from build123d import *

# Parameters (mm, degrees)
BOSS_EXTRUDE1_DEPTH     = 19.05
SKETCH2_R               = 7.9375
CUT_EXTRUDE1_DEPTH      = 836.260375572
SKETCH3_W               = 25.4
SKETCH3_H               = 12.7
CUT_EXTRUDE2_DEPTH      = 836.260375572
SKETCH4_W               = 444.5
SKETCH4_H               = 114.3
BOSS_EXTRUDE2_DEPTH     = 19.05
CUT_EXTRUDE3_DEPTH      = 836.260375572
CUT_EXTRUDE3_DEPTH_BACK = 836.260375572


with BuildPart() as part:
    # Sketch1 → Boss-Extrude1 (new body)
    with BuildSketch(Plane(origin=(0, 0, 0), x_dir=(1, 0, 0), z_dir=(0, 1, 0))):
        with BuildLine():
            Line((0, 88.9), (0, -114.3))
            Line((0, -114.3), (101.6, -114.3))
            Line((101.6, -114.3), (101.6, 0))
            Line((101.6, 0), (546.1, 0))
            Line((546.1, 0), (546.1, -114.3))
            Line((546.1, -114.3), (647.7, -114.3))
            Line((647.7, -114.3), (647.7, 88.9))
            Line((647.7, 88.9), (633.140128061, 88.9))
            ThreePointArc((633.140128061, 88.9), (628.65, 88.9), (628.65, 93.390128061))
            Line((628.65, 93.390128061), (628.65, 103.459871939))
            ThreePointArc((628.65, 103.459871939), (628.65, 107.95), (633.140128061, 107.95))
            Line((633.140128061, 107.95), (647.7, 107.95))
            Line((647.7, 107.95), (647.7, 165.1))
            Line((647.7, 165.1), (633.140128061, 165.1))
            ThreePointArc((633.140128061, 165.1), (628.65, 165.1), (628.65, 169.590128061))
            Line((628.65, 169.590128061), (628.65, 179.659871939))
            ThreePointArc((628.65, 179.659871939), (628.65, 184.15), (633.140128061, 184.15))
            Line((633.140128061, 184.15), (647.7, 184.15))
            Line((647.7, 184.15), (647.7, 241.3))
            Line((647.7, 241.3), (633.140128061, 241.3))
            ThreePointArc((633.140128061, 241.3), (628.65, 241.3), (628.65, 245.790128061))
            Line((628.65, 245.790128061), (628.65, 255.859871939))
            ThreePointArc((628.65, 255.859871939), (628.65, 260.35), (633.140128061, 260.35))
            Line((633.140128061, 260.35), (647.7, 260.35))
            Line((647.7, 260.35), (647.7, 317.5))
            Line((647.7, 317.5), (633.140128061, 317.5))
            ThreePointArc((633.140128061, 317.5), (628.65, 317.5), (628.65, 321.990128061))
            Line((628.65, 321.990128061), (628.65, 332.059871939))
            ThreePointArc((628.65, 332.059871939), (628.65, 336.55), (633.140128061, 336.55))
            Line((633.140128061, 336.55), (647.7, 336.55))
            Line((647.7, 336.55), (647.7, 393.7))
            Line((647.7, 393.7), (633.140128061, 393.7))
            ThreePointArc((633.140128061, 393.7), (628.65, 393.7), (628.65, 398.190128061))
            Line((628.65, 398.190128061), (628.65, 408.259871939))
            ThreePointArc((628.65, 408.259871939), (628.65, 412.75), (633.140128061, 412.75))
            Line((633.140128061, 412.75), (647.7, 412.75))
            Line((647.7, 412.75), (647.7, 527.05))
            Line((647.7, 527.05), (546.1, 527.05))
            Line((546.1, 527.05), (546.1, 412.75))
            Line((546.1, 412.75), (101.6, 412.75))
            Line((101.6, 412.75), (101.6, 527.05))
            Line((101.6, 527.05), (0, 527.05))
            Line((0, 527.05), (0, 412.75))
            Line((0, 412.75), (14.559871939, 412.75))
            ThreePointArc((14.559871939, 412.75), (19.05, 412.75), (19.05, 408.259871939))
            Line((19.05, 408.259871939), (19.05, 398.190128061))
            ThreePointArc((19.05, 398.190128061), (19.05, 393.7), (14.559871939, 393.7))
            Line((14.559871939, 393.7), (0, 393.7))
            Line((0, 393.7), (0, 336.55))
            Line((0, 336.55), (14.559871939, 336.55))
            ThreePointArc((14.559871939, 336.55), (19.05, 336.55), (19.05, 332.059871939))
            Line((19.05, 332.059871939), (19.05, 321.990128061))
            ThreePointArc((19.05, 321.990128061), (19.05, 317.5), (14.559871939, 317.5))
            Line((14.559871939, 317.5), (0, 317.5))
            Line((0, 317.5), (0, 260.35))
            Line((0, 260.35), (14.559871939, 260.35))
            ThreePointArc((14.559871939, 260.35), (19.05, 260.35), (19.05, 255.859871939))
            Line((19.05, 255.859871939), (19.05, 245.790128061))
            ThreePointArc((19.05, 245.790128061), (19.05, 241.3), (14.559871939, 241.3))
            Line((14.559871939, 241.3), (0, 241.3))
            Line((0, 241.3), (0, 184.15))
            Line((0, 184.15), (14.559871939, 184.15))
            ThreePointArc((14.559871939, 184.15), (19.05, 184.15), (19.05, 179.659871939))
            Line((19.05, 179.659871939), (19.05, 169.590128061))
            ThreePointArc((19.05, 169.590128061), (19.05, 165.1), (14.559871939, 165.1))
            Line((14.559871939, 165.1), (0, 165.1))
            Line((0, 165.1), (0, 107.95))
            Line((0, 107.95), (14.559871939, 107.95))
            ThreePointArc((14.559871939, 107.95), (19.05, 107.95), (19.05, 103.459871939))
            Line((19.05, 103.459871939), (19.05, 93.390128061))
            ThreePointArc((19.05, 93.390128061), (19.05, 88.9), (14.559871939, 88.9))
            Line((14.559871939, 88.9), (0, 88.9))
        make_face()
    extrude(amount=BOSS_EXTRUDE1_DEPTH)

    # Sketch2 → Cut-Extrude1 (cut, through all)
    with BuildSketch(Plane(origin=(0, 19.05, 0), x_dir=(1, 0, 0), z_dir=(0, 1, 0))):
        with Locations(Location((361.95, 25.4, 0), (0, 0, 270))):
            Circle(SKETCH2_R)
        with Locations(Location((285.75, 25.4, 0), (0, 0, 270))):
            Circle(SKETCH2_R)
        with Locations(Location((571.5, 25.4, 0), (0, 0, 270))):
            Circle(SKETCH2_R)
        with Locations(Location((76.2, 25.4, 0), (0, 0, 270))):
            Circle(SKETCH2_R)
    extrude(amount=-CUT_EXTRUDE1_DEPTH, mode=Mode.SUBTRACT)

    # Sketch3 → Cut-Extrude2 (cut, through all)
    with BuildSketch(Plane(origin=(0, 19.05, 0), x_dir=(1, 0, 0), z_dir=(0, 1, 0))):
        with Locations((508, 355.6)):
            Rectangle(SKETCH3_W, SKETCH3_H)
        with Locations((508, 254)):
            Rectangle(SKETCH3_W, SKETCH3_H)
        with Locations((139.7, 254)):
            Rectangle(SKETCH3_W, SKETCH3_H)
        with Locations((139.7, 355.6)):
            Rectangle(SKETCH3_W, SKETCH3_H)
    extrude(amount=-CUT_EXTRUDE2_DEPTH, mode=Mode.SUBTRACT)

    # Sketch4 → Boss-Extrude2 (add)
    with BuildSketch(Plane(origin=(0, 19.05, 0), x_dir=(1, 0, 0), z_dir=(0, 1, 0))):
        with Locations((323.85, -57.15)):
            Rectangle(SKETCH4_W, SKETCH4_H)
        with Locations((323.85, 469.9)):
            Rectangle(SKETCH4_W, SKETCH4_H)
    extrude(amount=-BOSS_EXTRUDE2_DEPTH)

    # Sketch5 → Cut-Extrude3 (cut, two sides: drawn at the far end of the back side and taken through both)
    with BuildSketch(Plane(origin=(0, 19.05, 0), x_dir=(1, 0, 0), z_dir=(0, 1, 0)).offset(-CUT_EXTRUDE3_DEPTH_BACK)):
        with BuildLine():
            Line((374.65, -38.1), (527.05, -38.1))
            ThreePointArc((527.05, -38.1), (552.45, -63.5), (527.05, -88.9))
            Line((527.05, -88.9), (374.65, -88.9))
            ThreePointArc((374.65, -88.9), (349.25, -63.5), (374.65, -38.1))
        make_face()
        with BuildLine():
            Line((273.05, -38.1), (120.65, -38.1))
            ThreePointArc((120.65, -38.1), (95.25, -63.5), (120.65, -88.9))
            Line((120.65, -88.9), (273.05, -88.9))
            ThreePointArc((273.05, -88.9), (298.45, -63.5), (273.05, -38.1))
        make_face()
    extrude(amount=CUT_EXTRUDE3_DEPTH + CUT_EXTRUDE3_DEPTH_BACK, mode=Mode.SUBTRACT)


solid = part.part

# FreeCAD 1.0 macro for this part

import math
import FreeCAD as App
import Part
import Sketcher

V = App.Vector
Q = App.Units.Quantity

doc = App.newDocument("Part")
params = doc.addObject("Spreadsheet::Sheet", "Params")
for row, (alias, value) in enumerate([
    ("sketch1_width", "4 in"),
    ("sketch1_height", "8 in"),
    ("sketch1_width2", "17.5 in"),
    ("sketch1_height2", "4.5 in"),
    ("sketch1_radius", "0.125 in"),
    ("pad1_length", "0.75 in"),
    ("sketch2_diameter", "0.625 in"),
    ("sketch3_width", "1 in"),
    ("sketch3_height", "0.5 in"),
    ("sketch4_width", "17.5 in"),
    ("sketch4_height", "4.5 in"),
    ("pad2_length", "0.75 in"),
    ("sketch5_radius", "1 in"),
    ("sketch5_width", "6 in"),
], start=1):
    params.set(f"A{row}", alias)
    params.set(f"B{row}", "=" + value)
    params.setAlias(f"B{row}", alias)

body = doc.addObject("PartDesign::Body", "Body")

sketch1 = body.newObject("Sketcher::SketchObject", "Sketch")
sketch1.AttachmentSupport = (doc.getObject("XZ_Plane"), [""])
sketch1.MapMode = "FlatFace"
sketch1.addGeometry([
    Part.LineSegment(V(0, -88.9, 0), V(0, 114.3, 0)),
    Part.LineSegment(V(0, 114.3, 0), V(101.6, 114.3, 0)),
    Part.LineSegment(V(101.6, 114.3, 0), V(101.6, 0, 0)),
    Part.LineSegment(V(101.6, 0, 0), V(546.1, 0, 0)),
    Part.LineSegment(V(546.1, 0, 0), V(546.1, 114.3, 0)),
    Part.LineSegment(V(546.1, 114.3, 0), V(647.7, 114.3, 0)),
    Part.LineSegment(V(647.7, 114.3, 0), V(647.7, -88.9, 0)),
    Part.LineSegment(V(647.7, -88.9, 0), V(633.1, -88.9, 0)),
    Part.ArcOfCircle(Part.Circle(V(630.9, -91.1, 0), V(0, 0, 1), 3.2), math.radians(45), math.radians(225)),
    Part.LineSegment(V(628.6, -93.4, 0), V(628.6, -103.5, 0)),
    Part.ArcOfCircle(Part.Circle(V(630.9, -105.7, 0), V(0, 0, 1), 3.2), math.radians(135), math.radians(315)),
    Part.LineSegment(V(633.1, -108, 0), V(647.7, -108, 0)),
    Part.LineSegment(V(647.7, -108, 0), V(647.7, -165.1, 0)),
    Part.LineSegment(V(647.7, -165.1, 0), V(633.1, -165.1, 0)),
    Part.ArcOfCircle(Part.Circle(V(630.9, -167.3, 0), V(0, 0, 1), 3.2), math.radians(45), math.radians(225)),
    Part.LineSegment(V(628.6, -169.6, 0), V(628.6, -179.7, 0)),
    Part.ArcOfCircle(Part.Circle(V(630.9, -181.9, 0), V(0, 0, 1), 3.2), math.radians(135), math.radians(315)),
    Part.LineSegment(V(633.1, -184.2, 0), V(647.7, -184.2, 0)),
    Part.LineSegment(V(647.7, -184.2, 0), V(647.7, -241.3, 0)),
    Part.LineSegment(V(647.7, -241.3, 0), V(633.1, -241.3, 0)),
    Part.ArcOfCircle(Part.Circle(V(630.9, -243.5, 0), V(0, 0, 1), 3.2), math.radians(45), math.radians(225)),
    Part.LineSegment(V(628.6, -245.8, 0), V(628.6, -255.9, 0)),
    Part.ArcOfCircle(Part.Circle(V(630.9, -258.1, 0), V(0, 0, 1), 3.2), math.radians(135), math.radians(315)),
    Part.LineSegment(V(633.1, -260.4, 0), V(647.7, -260.4, 0)),
    Part.LineSegment(V(647.7, -260.4, 0), V(647.7, -317.5, 0)),
    Part.LineSegment(V(647.7, -317.5, 0), V(633.1, -317.5, 0)),
    Part.ArcOfCircle(Part.Circle(V(630.9, -319.7, 0), V(0, 0, 1), 3.2), math.radians(45), math.radians(225)),
    Part.LineSegment(V(628.6, -322, 0), V(628.6, -332.1, 0)),
    Part.ArcOfCircle(Part.Circle(V(630.9, -334.3, 0), V(0, 0, 1), 3.2), math.radians(135), math.radians(315)),
    Part.LineSegment(V(633.1, -336.6, 0), V(647.7, -336.6, 0)),
    Part.LineSegment(V(647.7, -336.6, 0), V(647.7, -393.7, 0)),
    Part.LineSegment(V(647.7, -393.7, 0), V(633.1, -393.7, 0)),
    Part.ArcOfCircle(Part.Circle(V(630.9, -395.9, 0), V(0, 0, 1), 3.2), math.radians(45), math.radians(225)),
    Part.LineSegment(V(628.6, -398.2, 0), V(628.6, -408.3, 0)),
    Part.ArcOfCircle(Part.Circle(V(630.9, -410.5, 0), V(0, 0, 1), 3.2), math.radians(135), math.radians(315)),
    Part.LineSegment(V(633.1, -412.8, 0), V(647.7, -412.8, 0)),
    Part.LineSegment(V(647.7, -412.8, 0), V(647.7, -527, 0)),
    Part.LineSegment(V(647.7, -527, 0), V(546.1, -527, 0)),
    Part.LineSegment(V(546.1, -527, 0), V(546.1, -412.8, 0)),
    Part.LineSegment(V(546.1, -412.8, 0), V(101.6, -412.8, 0)),
    Part.LineSegment(V(101.6, -412.8, 0), V(101.6, -527, 0)),
    Part.LineSegment(V(101.6, -527, 0), V(0, -527, 0)),
    Part.LineSegment(V(0, -527, 0), V(0, -412.8, 0)),
    Part.LineSegment(V(0, -412.8, 0), V(14.6, -412.8, 0)),
    Part.ArcOfCircle(Part.Circle(V(16.8, -410.5, 0), V(0, 0, 1), 3.2), math.radians(-135), math.radians(45)),
    Part.LineSegment(V(19.1, -408.3, 0), V(19.1, -398.2, 0)),
    Part.ArcOfCircle(Part.Circle(V(16.8, -395.9, 0), V(0, 0, 1), 3.2), math.radians(-45), math.radians(135)),
    Part.LineSegment(V(14.6, -393.7, 0), V(0, -393.7, 0)),
    Part.LineSegment(V(0, -393.7, 0), V(0, -336.6, 0)),
    Part.LineSegment(V(0, -336.6, 0), V(14.6, -336.6, 0)),
    Part.ArcOfCircle(Part.Circle(V(16.8, -334.3, 0), V(0, 0, 1), 3.2), math.radians(-135), math.radians(45)),
    Part.LineSegment(V(19.1, -332.1, 0), V(19.1, -322, 0)),
    Part.ArcOfCircle(Part.Circle(V(16.8, -319.7, 0), V(0, 0, 1), 3.2), math.radians(-45), math.radians(135)),
    Part.LineSegment(V(14.6, -317.5, 0), V(0, -317.5, 0)),
    Part.LineSegment(V(0, -317.5, 0), V(0, -260.4, 0)),
    Part.LineSegment(V(0, -260.4, 0), V(14.6, -260.4, 0)),
    Part.ArcOfCircle(Part.Circle(V(16.8, -258.1, 0), V(0, 0, 1), 3.2), math.radians(-135), math.radians(45)),
    Part.LineSegment(V(19.1, -255.9, 0), V(19.1, -245.8, 0)),
    Part.ArcOfCircle(Part.Circle(V(16.8, -243.5, 0), V(0, 0, 1), 3.2), math.radians(-45), math.radians(135)),
    Part.LineSegment(V(14.6, -241.3, 0), V(0, -241.3, 0)),
    Part.LineSegment(V(0, -241.3, 0), V(0, -184.2, 0)),
    Part.LineSegment(V(0, -184.2, 0), V(14.6, -184.2, 0)),
    Part.ArcOfCircle(Part.Circle(V(16.8, -181.9, 0), V(0, 0, 1), 3.2), math.radians(-135), math.radians(45)),
    Part.LineSegment(V(19.1, -179.7, 0), V(19.1, -169.6, 0)),
    Part.ArcOfCircle(Part.Circle(V(16.8, -167.3, 0), V(0, 0, 1), 3.2), math.radians(-45), math.radians(135)),
    Part.LineSegment(V(14.6, -165.1, 0), V(0, -165.1, 0)),
    Part.LineSegment(V(0, -165.1, 0), V(0, -108, 0)),
    Part.LineSegment(V(0, -108, 0), V(14.6, -108, 0)),
    Part.ArcOfCircle(Part.Circle(V(16.8, -105.7, 0), V(0, 0, 1), 3.2), math.radians(-135), math.radians(45)),
    Part.LineSegment(V(19.1, -103.5, 0), V(19.1, -93.4, 0)),
    Part.ArcOfCircle(Part.Circle(V(16.8, -91.1, 0), V(0, 0, 1), 3.2), math.radians(-45), math.radians(135)),
    Part.LineSegment(V(14.6, -88.9, 0), V(0, -88.9, 0)),
], False)
sketch1.addConstraint([
    Sketcher.Constraint("Coincident", 0, 2, 1, 1),
    Sketcher.Constraint("Coincident", 1, 2, 2, 1),
    Sketcher.Constraint("Coincident", 2, 2, 3, 1),
    Sketcher.Constraint("Coincident", 3, 2, 4, 1),
    Sketcher.Constraint("Coincident", 4, 2, 5, 1),
    Sketcher.Constraint("Coincident", 5, 2, 6, 1),
    Sketcher.Constraint("Coincident", 6, 2, 7, 1),
    Sketcher.Constraint("Coincident", 7, 2, 8, 1),
    Sketcher.Constraint("Coincident", 8, 2, 9, 1),
    Sketcher.Constraint("Coincident", 9, 2, 10, 1),
    Sketcher.Constraint("Coincident", 10, 2, 11, 1),
    Sketcher.Constraint("Coincident", 11, 2, 12, 1),
    Sketcher.Constraint("Coincident", 12, 2, 13, 1),
    Sketcher.Constraint("Coincident", 13, 2, 14, 1),
    Sketcher.Constraint("Coincident", 14, 2, 15, 1),
    Sketcher.Constraint("Coincident", 15, 2, 16, 1),
    Sketcher.Constraint("Coincident", 16, 2, 17, 1),
    Sketcher.Constraint("Coincident", 17, 2, 18, 1),
    Sketcher.Constraint("Coincident", 18, 2, 19, 1),
    Sketcher.Constraint("Coincident", 19, 2, 20, 1),
    Sketcher.Constraint("Coincident", 20, 2, 21, 1),
    Sketcher.Constraint("Coincident", 21, 2, 22, 1),
    Sketcher.Constraint("Coincident", 22, 2, 23, 1),
    Sketcher.Constraint("Coincident", 23, 2, 24, 1),
    Sketcher.Constraint("Coincident", 24, 2, 25, 1),
    Sketcher.Constraint("Coincident", 25, 2, 26, 1),
    Sketcher.Constraint("Coincident", 26, 2, 27, 1),
    Sketcher.Constraint("Coincident", 27, 2, 28, 1),
    Sketcher.Constraint("Coincident", 28, 2, 29, 1),
    Sketcher.Constraint("Coincident", 29, 2, 30, 1),
    Sketcher.Constraint("Coincident", 30, 2, 31, 1),
    Sketcher.Constraint("Coincident", 31, 2, 32, 1),
    Sketcher.Constraint("Coincident", 32, 2, 33, 1),
    Sketcher.Constraint("Coincident", 33, 2, 34, 1),
    Sketcher.Constraint("Coincident", 34, 2, 35, 1),
    Sketcher.Constraint("Coincident", 35, 2, 36, 1),
    Sketcher.Constraint("Coincident", 36, 2, 37, 1),
    Sketcher.Constraint("Coincident", 37, 2, 38, 1),
    Sketcher.Constraint("Coincident", 38, 2, 39, 1),
    Sketcher.Constraint("Coincident", 39, 2, 40, 1),
    Sketcher.Constraint("Coincident", 40, 2, 41, 1),
    Sketcher.Constraint("Coincident", 41, 2, 42, 1),
    Sketcher.Constraint("Coincident", 42, 2, 43, 1),
    Sketcher.Constraint("Coincident", 43, 2, 44, 1),
    Sketcher.Constraint("Coincident", 44, 2, 45, 1),
    Sketcher.Constraint("Coincident", 45, 2, 46, 1),
    Sketcher.Constraint("Coincident", 46, 2, 47, 1),
    Sketcher.Constraint("Coincident", 47, 2, 48, 1),
    Sketcher.Constraint("Coincident", 48, 2, 49, 1),
    Sketcher.Constraint("Coincident", 49, 2, 50, 1),
    Sketcher.Constraint("Coincident", 50, 2, 51, 1),
    Sketcher.Constraint("Coincident", 51, 2, 52, 1),
    Sketcher.Constraint("Coincident", 52, 2, 53, 1),
    Sketcher.Constraint("Coincident", 53, 2, 54, 1),
    Sketcher.Constraint("Coincident", 54, 2, 55, 1),
    Sketcher.Constraint("Coincident", 55, 2, 56, 1),
    Sketcher.Constraint("Coincident", 56, 2, 57, 1),
    Sketcher.Constraint("Coincident", 57, 2, 58, 1),
    Sketcher.Constraint("Coincident", 58, 2, 59, 1),
    Sketcher.Constraint("Coincident", 59, 2, 60, 1),
    Sketcher.Constraint("Coincident", 60, 2, 61, 1),
    Sketcher.Constraint("Coincident", 61, 2, 62, 1),
    Sketcher.Constraint("Coincident", 62, 2, 63, 1),
    Sketcher.Constraint("Coincident", 63, 2, 64, 1),
    Sketcher.Constraint("Coincident", 64, 2, 65, 1),
    Sketcher.Constraint("Coincident", 65, 2, 66, 1),
    Sketcher.Constraint("Coincident", 66, 2, 67, 1),
    Sketcher.Constraint("Coincident", 67, 2, 68, 1),
    Sketcher.Constraint("Coincident", 68, 2, 69, 1),
    Sketcher.Constraint("Coincident", 69, 2, 70, 1),
    Sketcher.Constraint("Coincident", 70, 2, 71, 1),
    Sketcher.Constraint("Coincident", 71, 2, 0, 1),
    Sketcher.Constraint("Vertical", 0),
    Sketcher.Constraint("Horizontal", 1),
    Sketcher.Constraint("Vertical", 2),
    Sketcher.Constraint("Horizontal", 3),
    Sketcher.Constraint("Vertical", 4),
    Sketcher.Constraint("Horizontal", 5),
    Sketcher.Constraint("Vertical", 6),
    Sketcher.Constraint("Horizontal", 7),
    Sketcher.Constraint("Vertical", 9),
    Sketcher.Constraint("Horizontal", 11),
    Sketcher.Constraint("Vertical", 12),
    Sketcher.Constraint("Horizontal", 13),
    Sketcher.Constraint("Vertical", 15),
    Sketcher.Constraint("Horizontal", 17),
    Sketcher.Constraint("Vertical", 18),
    Sketcher.Constraint("Horizontal", 19),
    Sketcher.Constraint("Vertical", 21),
    Sketcher.Constraint("Horizontal", 23),
    Sketcher.Constraint("Vertical", 24),
    Sketcher.Constraint("Horizontal", 25),
    Sketcher.Constraint("Vertical", 27),
    Sketcher.Constraint("Horizontal", 29),
    Sketcher.Constraint("Vertical", 30),
    Sketcher.Constraint("Horizontal", 31),
    Sketcher.Constraint("Vertical", 33),
    Sketcher.Constraint("Horizontal", 35),
    Sketcher.Constraint("Vertical", 36),
    Sketcher.Constraint("Horizontal", 37),
    Sketcher.Constraint("Vertical", 38),
    Sketcher.Constraint("Horizontal", 39),
    Sketcher.Constraint("Vertical", 40),
    Sketcher.Constraint("Horizontal", 41),
    Sketcher.Constraint("Vertical", 42),
    Sketcher.Constraint("Horizontal", 43),
    Sketcher.Constraint("Vertical", 45),
    Sketcher.Constraint("Horizontal", 47),
    Sketcher.Constraint("Vertical", 48),
    Sketcher.Constraint("Horizontal", 49),
    Sketcher.Constraint("Vertical", 51),
    Sketcher.Constraint("Horizontal", 53),
    Sketcher.Constraint("Vertical", 54),
    Sketcher.Constraint("Horizontal", 55),
    Sketcher.Constraint("Vertical", 57),
    Sketcher.Constraint("Horizontal", 59),
    Sketcher.Constraint("Vertical", 60),
    Sketcher.Constraint("Horizontal", 61),
    Sketcher.Constraint("Vertical", 63),
    Sketcher.Constraint("Horizontal", 65),
    Sketcher.Constraint("Vertical", 66),
    Sketcher.Constraint("Horizontal", 67),
    Sketcher.Constraint("Vertical", 69),
    Sketcher.Constraint("Horizontal", 71),
    Sketcher.Constraint("Equal", 8, 10),
    Sketcher.Constraint("Equal", 10, 14),
    Sketcher.Constraint("Equal", 14, 16),
    Sketcher.Constraint("Equal", 16, 20),
    Sketcher.Constraint("Equal", 20, 22),
    Sketcher.Constraint("Equal", 22, 26),
    Sketcher.Constraint("Equal", 26, 28),
    Sketcher.Constraint("Equal", 28, 32),
    Sketcher.Constraint("Equal", 32, 34),
    Sketcher.Constraint("Equal", 34, 44),
    Sketcher.Constraint("Equal", 44, 46),
    Sketcher.Constraint("Equal", 46, 50),
    Sketcher.Constraint("Equal", 50, 52),
    Sketcher.Constraint("Equal", 52, 56),
    Sketcher.Constraint("Equal", 56, 58),
    Sketcher.Constraint("Equal", 58, 62),
    Sketcher.Constraint("Equal", 62, 64),
    Sketcher.Constraint("Equal", 64, 68),
    Sketcher.Constraint("Equal", 68, 70),
    Sketcher.Constraint("PointOnObject", 0, 2, -2),
    Sketcher.Constraint("PointOnObject", 2, 2, -1),
    Sketcher.Constraint("PointOnObject", 41, 2, -2),
    Sketcher.Constraint("PointOnObject", 47, 2, -2),
    Sketcher.Constraint("PointOnObject", 53, 2, -2),
    Sketcher.Constraint("PointOnObject", 59, 2, -2),
    Sketcher.Constraint("PointOnObject", 65, 2, -2),
    Sketcher.Constraint("Horizontal", 34, 3, 44, 3),
    Sketcher.Constraint("Horizontal", 32, 3, 46, 3),
    Sketcher.Constraint("Horizontal", 28, 3, 50, 3),
    Sketcher.Constraint("Horizontal", 26, 3, 52, 3),
    Sketcher.Constraint("Horizontal", 22, 3, 56, 3),
    Sketcher.Constraint("Horizontal", 20, 3, 58, 3),
    Sketcher.Constraint("Horizontal", 16, 3, 62, 3),
    Sketcher.Constraint("Horizontal", 14, 3, 64, 3),
    Sketcher.Constraint("Horizontal", 10, 3, 68, 3),
    Sketcher.Constraint("Horizontal", 8, 3, 70, 3),
    Sketcher.Constraint("Horizontal", 1, 2, 4, 2),
    Sketcher.Constraint("Horizontal", 35, 2, 38, 2),
    Sketcher.Constraint("Horizontal", 37, 2, 40, 2),
    Sketcher.Constraint("Horizontal", 39, 2, 42, 2),
    Sketcher.Constraint("Horizontal", 33, 2, 44, 2),
    Sketcher.Constraint("Horizontal", 32, 2, 45, 2),
    Sketcher.Constraint("Horizontal", 31, 2, 46, 2),
    Sketcher.Constraint("Horizontal", 29, 2, 48, 2),
    Sketcher.Constraint("Horizontal", 27, 2, 50, 2),
    Sketcher.Constraint("Horizontal", 26, 2, 51, 2),
    Sketcher.Constraint("Horizontal", 25, 2, 52, 2),
    Sketcher.Constraint("Horizontal", 23, 2, 54, 2),
    Sketcher.Constraint("Horizontal", 21, 2, 56, 2),
    Sketcher.Constraint("Horizontal", 20, 2, 57, 2),
    Sketcher.Constraint("Horizontal", 19, 2, 58, 2),
    Sketcher.Constraint("Horizontal", 17, 2, 60, 2),
    Sketcher.Constraint("Horizontal", 15, 2, 62, 2),
    Sketcher.Constraint("Horizontal", 14, 2, 63, 2),
    Sketcher.Constraint("Horizontal", 13, 2, 64, 2),
    Sketcher.Constraint("Horizontal", 11, 2, 66, 2),
    Sketcher.Constraint("Horizontal", 9, 2, 68, 2),
    Sketcher.Constraint("Horizontal", 8, 2, 69, 2),
    Sketcher.Constraint("Horizontal", 7, 2, 70, 2),
    Sketcher.Constraint("Vertical", 8, 3, 10, 3),
    Sketcher.Constraint("Vertical", 10, 3, 14, 3),
    Sketcher.Constraint("Vertical", 14, 3, 16, 3),
    Sketcher.Constraint("Vertical", 16, 3, 20, 3),
    Sketcher.Constraint("Vertical", 20, 3, 22, 3),
    Sketcher.Constraint("Vertical", 22, 3, 26, 3),
    Sketcher.Constraint("Vertical", 26, 3, 28, 3),
    Sketcher.Constraint("Vertical", 28, 3, 32, 3),
    Sketcher.Constraint("Vertical", 32, 3, 34, 3),
    Sketcher.Constraint("Vertical", 46, 3, 50, 3),
    Sketcher.Constraint("Vertical", 52, 3, 56, 3),
    Sketcher.Constraint("Vertical", 58, 3, 62, 3),
    Sketcher.Constraint("Vertical", 64, 3, 68, 3),
    Sketcher.Constraint("Vertical", 7, 2, 10, 2),
    Sketcher.Constraint("Vertical", 6, 2, 11, 2),
    Sketcher.Constraint("Vertical", 10, 2, 13, 2),
    Sketcher.Constraint("Vertical", 9, 2, 14, 2),
    Sketcher.Constraint("Vertical", 13, 2, 16, 2),
    Sketcher.Constraint("Vertical", 12, 2, 17, 2),
    Sketcher.Constraint("Vertical", 16, 2, 19, 2),
    Sketcher.Constraint("Vertical", 15, 2, 20, 2),
    Sketcher.Constraint("Vertical", 19, 2, 22, 2),
    Sketcher.Constraint("Vertical", 18, 2, 23, 2),
    Sketcher.Constraint("Vertical", 22, 2, 25, 2),
    Sketcher.Constraint("Vertical", 21, 2, 26, 2),
    Sketcher.Constraint("Vertical", 25, 2, 28, 2),
    Sketcher.Constraint("Vertical", 24, 2, 29, 2),
    Sketcher.Constraint("Vertical", 28, 2, 31, 2),
    Sketcher.Constraint("Vertical", 27, 2, 32, 2),
    Sketcher.Constraint("Vertical", 31, 2, 34, 2),
    Sketcher.Constraint("Vertical", 30, 2, 35, 2),
    Sketcher.Constraint("Vertical", 4, 2, 37, 2),
    Sketcher.Constraint("Vertical", 2, 2, 39, 2),
    Sketcher.Constraint("Equal", 1, 5),
    Sketcher.Constraint("Equal", 35, 43),
    Sketcher.Constraint("Equal", 9, 15),
    Sketcher.Constraint("Equal", 12, 18),
    Sketcher.Constraint("Equal", 15, 21),
    Sketcher.Constraint("Equal", 18, 24),
    Sketcher.Constraint("Equal", 21, 27),
    Sketcher.Constraint("Equal", 24, 30),
    Sketcher.Constraint("Equal", 27, 33),
    Sketcher.Constraint("Equal", 4, 36),
    Sketcher.Constraint("DistanceX", 1, 1, 1, 2, Q("4 in")),
    Sketcher.Constraint("DistanceY", 0, 1, 0, 2, Q("8 in")),
    Sketcher.Constraint("DistanceX", 3, 1, 3, 2, Q("17.5 in")),
    Sketcher.Constraint("DistanceY", 2, 2, 2, 1, Q("4.5 in")),
    Sketcher.Constraint("Radius", 8, Q("0.125 in")),
    Sketcher.Constraint("DistanceY", 12, 2, 12, 1, Q("2.25 in")),
    Sketcher.Constraint("DistanceY", 12, 2, -1, 1, Q("6.5 in")),
    Sketcher.Constraint("DistanceX", -1, 1, 8, 2, Q("24.75 in")),
    Sketcher.Constraint("DistanceX", 7, 2, 7, 1, 14.559872),
    Sketcher.Constraint("DistanceX", -1, 1, 8, 3, 630.895064),
])
sketch1.setExpression("Constraints[226]", "Params.sketch1_width")
sketch1.setExpression("Constraints[227]", "Params.sketch1_height")
sketch1.setExpression("Constraints[228]", "Params.sketch1_width2")
sketch1.setExpression("Constraints[229]", "Params.sketch1_height2")
sketch1.setExpression("Constraints[230]", "Params.sketch1_radius")
pad1 = body.newObject("PartDesign::Pad", "Pad")
pad1.Profile = sketch1
pad1.setExpression("Length", "Params.pad1_length")
pad1.Reversed = True

sketch2 = body.newObject("Sketcher::SketchObject", "Sketch001")
sketch2.AttachmentSupport = (doc.getObject("XZ_Plane"), [""])
sketch2.MapMode = "FlatFace"
sketch2.AttachmentOffset = App.Placement(V(0, 0, -0.75 * 25.4), App.Rotation())
sketch2.addGeometry([
    Part.Circle(V(362, -25, 0), V(0, 0, 1), 8),
    Part.Circle(V(286, -25, 0), V(0, 0, 1), 8),
    Part.Circle(V(572, -25, 0), V(0, 0, 1), 8),
    Part.Circle(V(76, -25, 0), V(0, 0, 1), 8),
], False)
sketch2.addConstraint([
    Sketcher.Constraint("Equal", 0, 1),
    Sketcher.Constraint("Equal", 1, 2),
    Sketcher.Constraint("Equal", 2, 3),
    Sketcher.Constraint("Horizontal", 0, 3, 1, 3),
    Sketcher.Constraint("Horizontal", 1, 3, 2, 3),
    Sketcher.Constraint("Horizontal", 2, 3, 3, 3),
    Sketcher.Constraint("Diameter", 0, Q("0.625 in")),
    Sketcher.Constraint("DistanceY", 0, 3, -1, 1, Q("1 in")),
    Sketcher.Constraint("DistanceX", -1, 1, 3, 3, Q("3 in")),
    Sketcher.Constraint("DistanceX", 1, 3, 0, 3, Q("3 in")),
    Sketcher.Constraint("DistanceX", -1, 1, 2, 3, Q("22.5 in")),
    Sketcher.Constraint("DistanceX", -1, 1, 0, 3, Q("14.25 in")),
])
sketch2.setExpression("Constraints[6]", "Params.sketch2_diameter")
pocket1 = body.newObject("PartDesign::Pocket", "Pocket")
pocket1.Profile = sketch2
pocket1.Type = "ThroughAll"
pocket1.Reversed = True

sketch3 = body.newObject("Sketcher::SketchObject", "Sketch002")
sketch3.AttachmentSupport = (doc.getObject("XZ_Plane"), [""])
sketch3.MapMode = "FlatFace"
sketch3.AttachmentOffset = App.Placement(V(0, 0, -0.75 * 25.4), App.Rotation())
sketch3.addGeometry([
    Part.LineSegment(V(495, -362, 0), V(495, -349, 0)),
    Part.LineSegment(V(495, -349, 0), V(521, -349, 0)),
    Part.LineSegment(V(521, -349, 0), V(521, -362, 0)),
    Part.LineSegment(V(521, -362, 0), V(495, -362, 0)),
    Part.LineSegment(V(495, -260, 0), V(495, -248, 0)),
    Part.LineSegment(V(495, -248, 0), V(521, -248, 0)),
    Part.LineSegment(V(521, -248, 0), V(521, -260, 0)),
    Part.LineSegment(V(521, -260, 0), V(495, -260, 0)),
    Part.LineSegment(V(127, -260, 0), V(127, -248, 0)),
    Part.LineSegment(V(127, -248, 0), V(152, -248, 0)),
    Part.LineSegment(V(152, -248, 0), V(152, -260, 0)),
    Part.LineSegment(V(152, -260, 0), V(127, -260, 0)),
    Part.LineSegment(V(127, -362, 0), V(127, -349, 0)),
    Part.LineSegment(V(127, -349, 0), V(152, -349, 0)),
    Part.LineSegment(V(152, -349, 0), V(152, -362, 0)),
    Part.LineSegment(V(152, -362, 0), V(127, -362, 0)),
], False)
sketch3.addConstraint([
    Sketcher.Constraint("Coincident", 0, 2, 1, 1),
    Sketcher.Constraint("Coincident", 1, 2, 2, 1),
    Sketcher.Constraint("Coincident", 2, 2, 3, 1),
    Sketcher.Constraint("Coincident", 3, 2, 0, 1),
    Sketcher.Constraint("Coincident", 4, 2, 5, 1),
    Sketcher.Constraint("Coincident", 5, 2, 6, 1),
    Sketcher.Constraint("Coincident", 6, 2, 7, 1),
    Sketcher.Constraint("Coincident", 7, 2, 4, 1),
    Sketcher.Constraint("Coincident", 8, 2, 9, 1),
    Sketcher.Constraint("Coincident", 9, 2, 10, 1),
    Sketcher.Constraint("Coincident", 10, 2, 11, 1),
    Sketcher.Constraint("Coincident", 11, 2, 8, 1),
    Sketcher.Constraint("Coincident", 12, 2, 13, 1),
    Sketcher.Constraint("Coincident", 13, 2, 14, 1),
    Sketcher.Constraint("Coincident", 14, 2, 15, 1),
    Sketcher.Constraint("Coincident", 15, 2, 12, 1),
    Sketcher.Constraint("Vertical", 0),
    Sketcher.Constraint("Horizontal", 1),
    Sketcher.Constraint("Vertical", 2),
    Sketcher.Constraint("Horizontal", 3),
    Sketcher.Constraint("Vertical", 4),
    Sketcher.Constraint("Horizontal", 5),
    Sketcher.Constraint("Vertical", 6),
    Sketcher.Constraint("Horizontal", 7),
    Sketcher.Constraint("Vertical", 8),
    Sketcher.Constraint("Horizontal", 9),
    Sketcher.Constraint("Vertical", 10),
    Sketcher.Constraint("Horizontal", 11),
    Sketcher.Constraint("Vertical", 12),
    Sketcher.Constraint("Horizontal", 13),
    Sketcher.Constraint("Vertical", 14),
    Sketcher.Constraint("Horizontal", 15),
    Sketcher.Constraint("Horizontal", 5, 2, 8, 2),
    Sketcher.Constraint("Horizontal", 7, 2, 10, 2),
    Sketcher.Constraint("Horizontal", 1, 2, 12, 2),
    Sketcher.Constraint("Horizontal", 3, 2, 14, 2),
    Sketcher.Constraint("Vertical", 3, 2, 4, 2),
    Sketcher.Constraint("Vertical", 2, 2, 5, 2),
    Sketcher.Constraint("Vertical", 11, 2, 12, 2),
    Sketcher.Constraint("Vertical", 10, 2, 13, 2),
    Sketcher.Constraint("Equal", 7, 9),
    Sketcher.Constraint("Equal", 2, 4),
    Sketcher.Constraint("DistanceX", 1, 1, 1, 2, Q("1 in")),
    Sketcher.Constraint("DistanceY", 0, 1, 0, 2, Q("0.5 in")),
    Sketcher.Constraint("DistanceX", -1, 1, 8, 2, Q("5 in")),
    Sketcher.Constraint("DistanceY", 0, 2, 4, 2, Q("4 in")),
    Sketcher.Constraint("DistanceX", -1, 1, 0, 2, Q("19.5 in")),
    Sketcher.Constraint("DistanceY", 0, 2, -1, 1, Q("13.75 in")),
])
sketch3.setExpression("Constraints[42]", "Params.sketch3_width")
sketch3.setExpression("Constraints[43]", "Params.sketch3_height")
pocket2 = body.newObject("PartDesign::Pocket", "Pocket001")
pocket2.Profile = sketch3
pocket2.Type = "ThroughAll"
pocket2.Reversed = True

sketch4 = body.newObject("Sketcher::SketchObject", "Sketch003")
sketch4.AttachmentSupport = (doc.getObject("XZ_Plane"), [""])
sketch4.MapMode = "FlatFace"
sketch4.AttachmentOffset = App.Placement(V(0, 0, -0.75 * 25.4), App.Rotation())
sketch4.addGeometry([
    Part.LineSegment(V(102, 0, 0), V(102, 114, 0)),
    Part.LineSegment(V(102, 114, 0), V(546, 114, 0)),
    Part.LineSegment(V(546, 114, 0), V(546, 0, 0)),
    Part.LineSegment(V(546, 0, 0), V(102, 0, 0)),
    Part.LineSegment(V(102, -527, 0), V(102, -413, 0)),
    Part.LineSegment(V(102, -413, 0), V(546, -413, 0)),
    Part.LineSegment(V(546, -413, 0), V(546, -527, 0)),
    Part.LineSegment(V(546, -527, 0), V(102, -527, 0)),
], False)
sketch4.addConstraint([
    Sketcher.Constraint("Coincident", 0, 2, 1, 1),
    Sketcher.Constraint("Coincident", 1, 2, 2, 1),
    Sketcher.Constraint("Coincident", 2, 2, 3, 1),
    Sketcher.Constraint("Coincident", 3, 2, 0, 1),
    Sketcher.Constraint("Coincident", 4, 2, 5, 1),
    Sketcher.Constraint("Coincident", 5, 2, 6, 1),
    Sketcher.Constraint("Coincident", 6, 2, 7, 1),
    Sketcher.Constraint("Coincident", 7, 2, 4, 1),
    Sketcher.Constraint("Vertical", 0),
    Sketcher.Constraint("Horizontal", 1),
    Sketcher.Constraint("Vertical", 2),
    Sketcher.Constraint("Horizontal", 3),
    Sketcher.Constraint("Vertical", 4),
    Sketcher.Constraint("Horizontal", 5),
    Sketcher.Constraint("Vertical", 6),
    Sketcher.Constraint("Horizontal", 7),
    Sketcher.Constraint("PointOnObject", 2, 2, -1),
    Sketcher.Constraint("Vertical", 3, 2, 4, 2),
    Sketcher.Constraint("Vertical", 2, 2, 5, 2),
    Sketcher.Constraint("Equal", 2, 4),
    Sketcher.Constraint("DistanceX", 1, 1, 1, 2, Q("17.5 in")),
    Sketcher.Constraint("DistanceY", 0, 1, 0, 2, Q("4.5 in")),
    Sketcher.Constraint("DistanceX", -1, 1, 0, 2, Q("4 in")),
    Sketcher.Constraint("DistanceY", 4, 2, -1, 1, Q("16.25 in")),
])
sketch4.setExpression("Constraints[20]", "Params.sketch4_width")
sketch4.setExpression("Constraints[21]", "Params.sketch4_height")
pad2 = body.newObject("PartDesign::Pad", "Pad001")
pad2.Profile = sketch4
pad2.setExpression("Length", "Params.pad2_length")

sketch5 = body.newObject("Sketcher::SketchObject", "Sketch004")
sketch5.AttachmentSupport = (doc.getObject("XZ_Plane"), [""])
sketch5.MapMode = "FlatFace"
sketch5.AttachmentOffset = App.Placement(V(0, 0, -0.75 * 25.4), App.Rotation())
sketch5.addGeometry([
    Part.LineSegment(V(527, 38, 0), V(375, 38, 0)),
    Part.ArcOfCircle(Part.Circle(V(375, 64, 0), V(0, 0, 1), 25), math.radians(90), math.radians(270)),
    Part.LineSegment(V(375, 89, 0), V(527, 89, 0)),
    Part.ArcOfCircle(Part.Circle(V(527, 64, 0), V(0, 0, 1), 25), math.radians(-90), math.radians(90)),
    Part.LineSegment(V(273, 38, 0), V(121, 38, 0)),
    Part.ArcOfCircle(Part.Circle(V(121, 64, 0), V(0, 0, 1), 25), math.radians(90), math.radians(270)),
    Part.LineSegment(V(121, 89, 0), V(273, 89, 0)),
    Part.ArcOfCircle(Part.Circle(V(273, 64, 0), V(0, 0, 1), 25), math.radians(-90), math.radians(90)),
], False)
sketch5.addConstraint([
    Sketcher.Constraint("Tangent", 0, 2, 1, 2),
    Sketcher.Constraint("Tangent", 1, 1, 2, 1),
    Sketcher.Constraint("Tangent", 2, 2, 3, 2),
    Sketcher.Constraint("Tangent", 3, 1, 0, 1),
    Sketcher.Constraint("Tangent", 4, 2, 5, 2),
    Sketcher.Constraint("Tangent", 5, 1, 6, 1),
    Sketcher.Constraint("Tangent", 6, 2, 7, 2),
    Sketcher.Constraint("Tangent", 7, 1, 4, 1),
    Sketcher.Constraint("Horizontal", 0),
    Sketcher.Constraint("Horizontal", 2),
    Sketcher.Constraint("Horizontal", 4),
    Sketcher.Constraint("Horizontal", 6),
    Sketcher.Constraint("Equal", 3, 5),
    Sketcher.Constraint("Horizontal", 3, 3, 5, 3),
    Sketcher.Constraint("Equal", 2, 4),
    Sketcher.Constraint("Radius", 1, Q("1 in")),
    Sketcher.Constraint("DistanceX", 0, 2, 0, 1, Q("6 in")),
    Sketcher.Constraint("DistanceX", 5, 3, 1, 3, Q("10 in")),
    Sketcher.Constraint("DistanceY", -1, 1, 1, 3, Q("2.5 in")),
    Sketcher.Constraint("DistanceX", -1, 1, 1, 3, Q("14.75 in")),
])
sketch5.setExpression("Constraints[15]", "Params.sketch5_radius")
sketch5.setExpression("Constraints[16]", "Params.sketch5_width")
pocket3 = body.newObject("PartDesign::Pocket", "Pocket002")
pocket3.Profile = sketch5
pocket3.Type = "ThroughAll"
pocket3.Midplane = True

doc.recompute()
